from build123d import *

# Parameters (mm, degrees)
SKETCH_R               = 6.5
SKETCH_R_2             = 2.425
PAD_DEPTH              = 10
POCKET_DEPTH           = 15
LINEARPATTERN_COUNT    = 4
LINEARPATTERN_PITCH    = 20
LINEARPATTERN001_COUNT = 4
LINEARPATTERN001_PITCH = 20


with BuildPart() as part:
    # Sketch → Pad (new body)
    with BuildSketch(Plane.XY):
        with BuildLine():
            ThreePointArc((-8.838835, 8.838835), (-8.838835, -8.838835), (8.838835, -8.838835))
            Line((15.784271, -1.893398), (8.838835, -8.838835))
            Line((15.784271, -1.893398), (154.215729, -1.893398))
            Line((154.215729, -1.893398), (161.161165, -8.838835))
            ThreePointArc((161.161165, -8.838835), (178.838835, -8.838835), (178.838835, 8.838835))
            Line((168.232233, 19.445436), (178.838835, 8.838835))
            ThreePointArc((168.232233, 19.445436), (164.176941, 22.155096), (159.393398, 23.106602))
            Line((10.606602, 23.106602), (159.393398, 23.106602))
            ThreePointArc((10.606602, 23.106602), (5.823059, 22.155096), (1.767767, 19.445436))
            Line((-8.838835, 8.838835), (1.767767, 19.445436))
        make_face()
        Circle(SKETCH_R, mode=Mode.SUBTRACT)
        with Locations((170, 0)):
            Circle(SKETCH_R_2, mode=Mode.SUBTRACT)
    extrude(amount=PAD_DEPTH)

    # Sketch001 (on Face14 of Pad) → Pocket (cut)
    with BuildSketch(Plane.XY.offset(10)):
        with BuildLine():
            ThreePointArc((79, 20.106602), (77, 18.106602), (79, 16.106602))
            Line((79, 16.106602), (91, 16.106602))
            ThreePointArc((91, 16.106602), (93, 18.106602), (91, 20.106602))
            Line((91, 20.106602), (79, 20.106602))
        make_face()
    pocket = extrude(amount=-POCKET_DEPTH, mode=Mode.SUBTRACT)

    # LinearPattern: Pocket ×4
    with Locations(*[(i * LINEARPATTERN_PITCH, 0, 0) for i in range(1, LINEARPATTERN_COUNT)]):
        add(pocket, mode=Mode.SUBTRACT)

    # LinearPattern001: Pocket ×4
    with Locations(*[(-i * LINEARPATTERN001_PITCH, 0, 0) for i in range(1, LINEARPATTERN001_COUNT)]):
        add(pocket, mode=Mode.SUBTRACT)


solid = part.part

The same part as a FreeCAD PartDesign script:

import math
import FreeCAD as App
import Part
import Sketcher
from FreeCAD import Vector

doc = App.newDocument("Part")
params = doc.addObject("Spreadsheet::Sheet", "Params")
for row, (alias, value) in enumerate([
    ("sketch1_diameter", "13 mm"),
    ("sketch1_radius", "12.5 mm"),
    ("sketch1_diameter2", "4.85 mm"),
    ("sketch1_length", "15 mm"),
    ("pad1_length", "10 mm"),
    ("sketch2_radius", "2 mm"),
    ("sketch2_width", "12 mm"),
    ("pocket1_length", "15 mm"),
    ("linearpattern_pitch", "20 mm"),
    ("linearpattern2_pitch", "20 mm"),
], start=1):
    params.set(f"A{row}", alias)
    params.set(f"B{row}", "=" + value)
    params.setAlias(f"B{row}", alias)

body = doc.addObject("PartDesign::Body", "Body")

# Sketch on XY plane
sketch1 = body.newObject("Sketcher::SketchObject", "Sketch")
sketch1.AttachmentSupport = (doc.getObject("XY_Plane"), [""])
sketch1.MapMode = "FlatFace"
sketch1.addGeometry([
    Part.ArcOfCircle(Part.Circle(Vector(0, 0, 0), Vector(0, 0, 1), 12.5), math.radians(135), math.radians(315)),  # 0
    Part.LineSegment(Vector(8.8, -8.8, 0), Vector(15.8, -1.9, 0)),  # 1
    Part.LineSegment(Vector(15.8, -1.9, 0), Vector(154.2, -1.9, 0)),  # 2
    Part.LineSegment(Vector(154.2, -1.9, 0), Vector(161.2, -8.8, 0)),  # 3
    Part.ArcOfCircle(Part.Circle(Vector(170, 0, 0), Vector(0, 0, 1), 12.5), math.radians(-135), math.radians(45)),  # 4
    Part.LineSegment(Vector(178.8, 8.8, 0), Vector(168.2, 19.4, 0)),  # 5
    Part.ArcOfCircle(Part.Circle(Vector(159.4, 10.6, 0), Vector(0, 0, 1), 12.5), math.radians(45), math.radians(90)),  # 6
    Part.LineSegment(Vector(159.4, 23.1, 0), Vector(10.6, 23.1, 0)),  # 7
    Part.ArcOfCircle(Part.Circle(Vector(10.6, 10.6, 0), Vector(0, 0, 1), 12.5), math.radians(90), math.radians(135)),  # 8
    Part.LineSegment(Vector(1.8, 19.4, 0), Vector(-8.8, 8.8, 0)),  # 9
    Part.Circle(Vector(0, 0, 0), Vector(0, 0, 1), 6.5),  # 10
    Part.Circle(Vector(170, 0, 0), Vector(0, 0, 1), 2.4),  # 11
], False)
sketch1.addConstraint([
    Sketcher.Constraint("Tangent", 0, 2, 1, 1),
    Sketcher.Constraint("Coincident", 1, 2, 2, 1),
    Sketcher.Constraint("Coincident", 2, 2, 3, 1),
    Sketcher.Constraint("Tangent", 3, 2, 4, 1),
    Sketcher.Constraint("Tangent", 4, 2, 5, 1),
    Sketcher.Constraint("Tangent", 5, 2, 6, 1),
    Sketcher.Constraint("Tangent", 6, 2, 7, 1),
    Sketcher.Constraint("Tangent", 7, 2, 8, 1),
    Sketcher.Constraint("Tangent", 8, 2, 9, 1),
    Sketcher.Constraint("Tangent", 9, 2, 0, 1),
    Sketcher.Constraint("Horizontal", 2),
    Sketcher.Constraint("Horizontal", 7),
    Sketcher.Constraint("Coincident", 0, 3, -1, 1),
    Sketcher.Constraint("Coincident", 10, 3, -1, 1),
    Sketcher.Constraint("Coincident", 11, 3, 4, 3),
    Sketcher.Constraint("Equal", 0, 4),
    Sketcher.Constraint("Equal", 4, 6),
    Sketcher.Constraint("Equal", 6, 8),
    Sketcher.Constraint("PointOnObject", 4, 3, -1),
    Sketcher.Constraint("Perpendicular", 1, 3),
    Sketcher.Constraint("Parallel", 3, 5),
    Sketcher.Constraint("Perpendicular", 5, 9),
    Sketcher.Constraint("Horizontal", 0, 2, 3, 2),
    Sketcher.Constraint("Diameter", 10, 13.0),
    Sketcher.Constraint("Radius", 0, 12.5),
    Sketcher.Constraint("Diameter", 11, 4.85),
    Sketcher.Constraint("Distance", 5, 15.0),
    Sketcher.Constraint("DistanceX", -1, 1, 4, 3, 170.0),
    Sketcher.Constraint("DistanceY", 1, 2, 7, 2, 25.0),
])
sketch1.setExpression("Constraints[23]", "Params.sketch1_diameter")
sketch1.setExpression("Constraints[24]", "Params.sketch1_radius")
sketch1.setExpression("Constraints[25]", "Params.sketch1_diameter2")
sketch1.setExpression("Constraints[26]", "Params.sketch1_length")
pad1 = body.newObject("PartDesign::Pad", "Pad")
pad1.Profile = sketch1
pad1.setExpression("Length", "Params.pad1_length")

# Sketch on XY plane
sketch2 = body.newObject("Sketcher::SketchObject", "Sketch001")
sketch2.AttachmentSupport = (doc.getObject("XY_Plane"), [""])
sketch2.MapMode = "FlatFace"
sketch2.AttachmentOffset = App.Placement(Vector(0, 0, 10), App.Rotation())
sketch2.addGeometry([
    Part.ArcOfCircle(Part.Circle(Vector(79, 18.1, 0), Vector(0, 0, 1), 2), math.radians(90), math.radians(270)),
    Part.LineSegment(Vector(79, 16.1, 0), Vector(91, 16.1, 0)),
    Part.ArcOfCircle(Part.Circle(Vector(91, 18.1, 0), Vector(0, 0, 1), 2), math.radians(-90), math.radians(90)),
    Part.LineSegment(Vector(91, 20.1, 0), Vector(79, 20.1, 0)),
], False)
sketch2.addConstraint([
    Sketcher.Constraint("Tangent", 0, 2, 1, 1),
    Sketcher.Constraint("Tangent", 1, 2, 2, 1),
    Sketcher.Constraint("Tangent", 2, 2, 3, 1),
    Sketcher.Constraint("Tangent", 3, 2, 0, 1),
    Sketcher.Constraint("Horizontal", 1),
    Sketcher.Constraint("Horizontal", 3),
    Sketcher.Constraint("Radius", 0, 2.0),
    Sketcher.Constraint("DistanceX", 1, 1, 1, 2, 12.0),
    Sketcher.Constraint("DistanceX", -1, 1, 0, 3, 79.0),
    Sketcher.Constraint("DistanceY", -1, 1, 0, 3, 18.106602),
])
sketch2.setExpression("Constraints[6]", "Params.sketch2_radius")
sketch2.setExpression("Constraints[7]", "Params.sketch2_width")
pocket1 = body.newObject("PartDesign::Pocket", "Pocket")
pocket1.Profile = sketch2
pocket1.setExpression("Length", "Params.pocket1_length")
doc.recompute()

linearpattern = body.newObject("PartDesign::LinearPattern", "LinearPattern")
linearpattern.Originals = [pocket1]
linearpattern.Direction = (doc.getObject("X_Axis"), [""])
linearpattern.Mode = "offset"
linearpattern.setExpression("Offset", "Params.linearpattern_pitch")
linearpattern.Occurrences = 4
body.Tip = linearpattern
doc.recompute()

linearpattern2 = body.newObject("PartDesign::LinearPattern", "LinearPattern001")
linearpattern2.Originals = [pocket1]
linearpattern2.Direction = (doc.getObject("X_Axis"), [""])
linearpattern2.Mode = "offset"
linearpattern2.setExpression("Offset", "Params.linearpattern2_pitch")
linearpattern2.Occurrences = 4
linearpattern2.Reversed = True
body.Tip = linearpattern2

doc.recompute()
